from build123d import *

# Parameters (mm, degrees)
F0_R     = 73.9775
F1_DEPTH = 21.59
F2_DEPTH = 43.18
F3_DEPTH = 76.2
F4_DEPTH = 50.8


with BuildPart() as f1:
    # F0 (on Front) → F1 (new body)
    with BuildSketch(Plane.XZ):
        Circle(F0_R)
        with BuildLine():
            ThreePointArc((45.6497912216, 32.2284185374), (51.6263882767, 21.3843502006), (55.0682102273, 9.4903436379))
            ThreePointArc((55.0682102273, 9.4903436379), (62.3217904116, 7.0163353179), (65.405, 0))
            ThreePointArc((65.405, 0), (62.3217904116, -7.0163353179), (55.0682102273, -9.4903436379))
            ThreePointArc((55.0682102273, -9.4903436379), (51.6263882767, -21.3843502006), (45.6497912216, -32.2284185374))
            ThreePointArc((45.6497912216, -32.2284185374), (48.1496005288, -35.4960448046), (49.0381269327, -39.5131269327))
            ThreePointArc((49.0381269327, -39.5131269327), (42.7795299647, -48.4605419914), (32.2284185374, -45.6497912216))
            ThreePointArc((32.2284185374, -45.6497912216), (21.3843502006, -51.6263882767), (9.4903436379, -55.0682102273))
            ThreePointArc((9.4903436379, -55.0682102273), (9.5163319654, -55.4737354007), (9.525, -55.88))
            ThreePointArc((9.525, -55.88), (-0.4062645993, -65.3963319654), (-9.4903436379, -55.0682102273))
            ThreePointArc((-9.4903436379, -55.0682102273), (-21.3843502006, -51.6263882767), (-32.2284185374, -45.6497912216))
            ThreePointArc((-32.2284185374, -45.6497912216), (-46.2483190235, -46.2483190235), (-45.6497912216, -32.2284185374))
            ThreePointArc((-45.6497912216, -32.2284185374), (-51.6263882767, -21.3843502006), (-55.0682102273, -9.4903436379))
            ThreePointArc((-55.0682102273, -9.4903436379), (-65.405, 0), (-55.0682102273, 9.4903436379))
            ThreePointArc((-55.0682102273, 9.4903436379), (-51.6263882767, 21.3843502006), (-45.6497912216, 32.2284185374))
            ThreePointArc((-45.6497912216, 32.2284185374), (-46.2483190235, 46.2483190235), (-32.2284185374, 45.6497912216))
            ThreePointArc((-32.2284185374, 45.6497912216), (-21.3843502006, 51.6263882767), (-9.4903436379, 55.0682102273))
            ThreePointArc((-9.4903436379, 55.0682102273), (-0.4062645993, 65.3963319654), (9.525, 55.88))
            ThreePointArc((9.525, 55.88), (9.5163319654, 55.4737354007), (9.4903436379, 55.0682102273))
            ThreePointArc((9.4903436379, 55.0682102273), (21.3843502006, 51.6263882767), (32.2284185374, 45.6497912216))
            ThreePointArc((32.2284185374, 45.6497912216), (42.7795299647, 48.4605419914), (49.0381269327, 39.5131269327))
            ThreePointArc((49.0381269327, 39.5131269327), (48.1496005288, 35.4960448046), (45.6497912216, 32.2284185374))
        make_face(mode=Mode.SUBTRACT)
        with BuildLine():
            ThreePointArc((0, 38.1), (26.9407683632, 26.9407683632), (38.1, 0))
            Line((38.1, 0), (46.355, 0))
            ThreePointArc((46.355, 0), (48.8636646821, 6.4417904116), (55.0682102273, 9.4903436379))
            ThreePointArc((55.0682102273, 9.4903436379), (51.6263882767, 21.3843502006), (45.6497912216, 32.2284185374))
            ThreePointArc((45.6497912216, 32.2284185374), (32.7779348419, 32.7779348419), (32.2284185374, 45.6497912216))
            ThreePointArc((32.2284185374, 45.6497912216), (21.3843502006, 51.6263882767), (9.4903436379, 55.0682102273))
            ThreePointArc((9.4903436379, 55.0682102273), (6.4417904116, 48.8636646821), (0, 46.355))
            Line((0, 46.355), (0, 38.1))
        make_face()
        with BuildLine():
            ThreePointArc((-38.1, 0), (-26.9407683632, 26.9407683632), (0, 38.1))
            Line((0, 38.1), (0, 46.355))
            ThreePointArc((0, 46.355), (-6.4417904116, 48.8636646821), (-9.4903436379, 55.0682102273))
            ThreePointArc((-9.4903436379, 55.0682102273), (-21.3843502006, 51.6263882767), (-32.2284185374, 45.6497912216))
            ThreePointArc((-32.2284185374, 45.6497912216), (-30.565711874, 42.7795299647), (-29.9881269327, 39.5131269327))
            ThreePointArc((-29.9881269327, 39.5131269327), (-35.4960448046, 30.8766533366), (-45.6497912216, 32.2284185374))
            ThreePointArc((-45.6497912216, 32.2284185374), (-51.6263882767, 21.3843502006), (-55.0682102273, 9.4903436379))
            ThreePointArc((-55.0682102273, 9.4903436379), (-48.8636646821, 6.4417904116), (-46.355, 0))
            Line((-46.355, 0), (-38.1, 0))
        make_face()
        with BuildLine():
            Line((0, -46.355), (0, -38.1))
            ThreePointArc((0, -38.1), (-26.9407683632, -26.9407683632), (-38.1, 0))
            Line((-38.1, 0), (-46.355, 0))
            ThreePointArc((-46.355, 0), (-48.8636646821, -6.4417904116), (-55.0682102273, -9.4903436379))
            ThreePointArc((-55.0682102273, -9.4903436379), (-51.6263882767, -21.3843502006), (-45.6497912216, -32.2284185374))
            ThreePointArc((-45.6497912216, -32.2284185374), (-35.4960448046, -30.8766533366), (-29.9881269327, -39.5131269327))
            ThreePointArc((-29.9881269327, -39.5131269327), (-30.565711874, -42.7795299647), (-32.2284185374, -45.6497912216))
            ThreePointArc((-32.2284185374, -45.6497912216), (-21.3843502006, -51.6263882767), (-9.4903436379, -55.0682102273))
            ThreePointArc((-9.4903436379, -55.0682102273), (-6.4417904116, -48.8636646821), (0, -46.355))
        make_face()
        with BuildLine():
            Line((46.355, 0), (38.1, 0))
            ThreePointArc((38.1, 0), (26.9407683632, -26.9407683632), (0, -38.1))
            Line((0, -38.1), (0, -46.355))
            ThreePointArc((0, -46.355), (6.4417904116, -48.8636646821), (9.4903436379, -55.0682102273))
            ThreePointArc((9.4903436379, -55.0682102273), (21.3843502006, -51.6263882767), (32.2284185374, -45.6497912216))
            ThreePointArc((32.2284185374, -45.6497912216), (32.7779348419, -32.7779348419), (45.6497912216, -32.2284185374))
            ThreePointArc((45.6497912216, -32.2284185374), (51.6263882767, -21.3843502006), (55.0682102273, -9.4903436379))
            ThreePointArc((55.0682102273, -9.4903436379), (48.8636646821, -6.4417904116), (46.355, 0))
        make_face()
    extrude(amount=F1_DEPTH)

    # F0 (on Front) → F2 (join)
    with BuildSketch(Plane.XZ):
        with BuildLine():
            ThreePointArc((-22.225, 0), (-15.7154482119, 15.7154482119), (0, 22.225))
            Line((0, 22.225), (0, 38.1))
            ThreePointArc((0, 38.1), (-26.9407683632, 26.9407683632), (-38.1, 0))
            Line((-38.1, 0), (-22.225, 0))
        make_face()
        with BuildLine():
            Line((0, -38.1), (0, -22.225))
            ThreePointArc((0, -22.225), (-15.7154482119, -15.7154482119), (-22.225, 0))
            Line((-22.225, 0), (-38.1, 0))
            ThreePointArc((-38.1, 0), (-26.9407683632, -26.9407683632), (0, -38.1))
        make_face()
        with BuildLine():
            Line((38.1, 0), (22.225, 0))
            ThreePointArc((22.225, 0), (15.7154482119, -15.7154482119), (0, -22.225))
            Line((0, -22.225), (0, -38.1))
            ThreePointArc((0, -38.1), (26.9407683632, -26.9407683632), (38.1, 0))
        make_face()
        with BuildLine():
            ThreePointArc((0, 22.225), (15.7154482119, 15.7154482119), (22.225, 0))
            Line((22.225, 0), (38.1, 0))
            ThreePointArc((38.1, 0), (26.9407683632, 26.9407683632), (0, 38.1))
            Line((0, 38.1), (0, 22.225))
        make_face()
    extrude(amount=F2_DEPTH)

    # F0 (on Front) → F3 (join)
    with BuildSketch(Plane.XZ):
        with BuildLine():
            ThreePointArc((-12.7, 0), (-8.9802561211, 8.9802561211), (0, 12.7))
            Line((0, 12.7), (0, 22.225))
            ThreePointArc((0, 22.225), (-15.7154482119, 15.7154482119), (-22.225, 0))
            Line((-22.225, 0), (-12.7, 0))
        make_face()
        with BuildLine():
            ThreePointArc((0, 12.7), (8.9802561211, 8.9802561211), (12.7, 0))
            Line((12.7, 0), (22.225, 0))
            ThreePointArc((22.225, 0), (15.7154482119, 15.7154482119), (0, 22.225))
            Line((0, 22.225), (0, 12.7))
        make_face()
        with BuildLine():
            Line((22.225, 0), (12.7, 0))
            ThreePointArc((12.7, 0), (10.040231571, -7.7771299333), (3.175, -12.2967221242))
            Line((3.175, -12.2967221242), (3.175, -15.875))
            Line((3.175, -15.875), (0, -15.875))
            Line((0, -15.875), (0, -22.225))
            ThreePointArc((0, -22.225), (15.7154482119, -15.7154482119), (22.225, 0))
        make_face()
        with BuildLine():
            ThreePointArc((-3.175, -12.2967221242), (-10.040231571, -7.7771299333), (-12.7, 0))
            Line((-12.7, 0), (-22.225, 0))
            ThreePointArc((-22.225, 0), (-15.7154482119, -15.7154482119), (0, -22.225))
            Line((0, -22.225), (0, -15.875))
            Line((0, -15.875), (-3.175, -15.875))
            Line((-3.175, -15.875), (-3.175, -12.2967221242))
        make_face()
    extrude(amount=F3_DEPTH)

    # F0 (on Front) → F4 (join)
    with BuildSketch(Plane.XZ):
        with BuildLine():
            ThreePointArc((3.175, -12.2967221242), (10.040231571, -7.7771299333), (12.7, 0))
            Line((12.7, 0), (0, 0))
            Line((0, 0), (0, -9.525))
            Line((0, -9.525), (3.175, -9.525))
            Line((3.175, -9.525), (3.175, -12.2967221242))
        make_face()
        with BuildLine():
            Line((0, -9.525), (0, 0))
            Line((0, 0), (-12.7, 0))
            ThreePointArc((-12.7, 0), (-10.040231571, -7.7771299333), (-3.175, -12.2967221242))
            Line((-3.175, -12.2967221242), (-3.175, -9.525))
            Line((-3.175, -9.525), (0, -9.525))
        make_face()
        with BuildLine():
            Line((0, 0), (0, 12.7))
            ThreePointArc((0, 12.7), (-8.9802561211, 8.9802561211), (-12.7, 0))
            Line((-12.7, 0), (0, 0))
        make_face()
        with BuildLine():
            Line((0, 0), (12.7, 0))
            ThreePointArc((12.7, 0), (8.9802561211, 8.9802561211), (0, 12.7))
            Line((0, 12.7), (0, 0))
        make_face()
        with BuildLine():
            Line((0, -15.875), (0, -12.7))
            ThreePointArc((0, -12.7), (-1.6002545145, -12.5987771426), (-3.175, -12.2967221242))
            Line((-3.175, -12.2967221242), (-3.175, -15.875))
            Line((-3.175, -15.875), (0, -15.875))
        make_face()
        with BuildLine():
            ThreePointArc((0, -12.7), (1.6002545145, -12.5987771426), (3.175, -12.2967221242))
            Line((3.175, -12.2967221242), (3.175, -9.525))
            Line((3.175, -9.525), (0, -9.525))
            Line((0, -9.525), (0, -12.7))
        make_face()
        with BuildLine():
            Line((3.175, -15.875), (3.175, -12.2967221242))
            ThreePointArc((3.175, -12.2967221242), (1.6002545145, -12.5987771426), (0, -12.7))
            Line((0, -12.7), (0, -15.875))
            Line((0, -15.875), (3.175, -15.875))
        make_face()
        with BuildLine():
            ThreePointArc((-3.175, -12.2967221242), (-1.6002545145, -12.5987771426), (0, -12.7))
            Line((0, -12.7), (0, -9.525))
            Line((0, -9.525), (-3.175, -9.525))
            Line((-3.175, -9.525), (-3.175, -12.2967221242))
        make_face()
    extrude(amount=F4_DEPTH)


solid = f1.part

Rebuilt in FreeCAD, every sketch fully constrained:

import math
import FreeCAD as App
import Part
import Sketcher
from FreeCAD import Vector
Q = App.Units.Quantity

doc = App.newDocument("Part")
body = doc.addObject("PartDesign::Body", "Body")

sketch1 = body.newObject("Sketcher::SketchObject", "Sketch")
sketch1.AttachmentSupport = (doc.getObject("XZ_Plane"), [""])
sketch1.MapMode = "FlatFace"
sketch1.addGeometry([
    Part.Circle(Vector(0, 0, 0), Vector(0, 0, 1), 74),
    Part.ArcOfCircle(Part.Circle(Vector(39.5, 39.5, 0), Vector(0, 0, 1), 9.5), math.radians(-50), math.radians(0)),
    Part.ArcOfCircle(Part.Circle(Vector(39.5, 39.5, 0), Vector(0, 0, 1), 9.5), math.radians(140), math.radians(310)),
    Part.ArcOfCircle(Part.Circle(Vector(39.5, 39.5, 0), Vector(0, 0, 1), 9.5), math.radians(0), math.radians(140)),
    Part.ArcOfCircle(Part.Circle(Vector(0, 55.9, 0), Vector(0, 0, 1), 9.5), math.radians(-4.89), math.radians(0)),
    Part.ArcOfCircle(Part.Circle(Vector(0, 55.9, 0), Vector(0, 0, 1), 9.5), math.radians(-90), math.radians(-5)),
    Part.ArcOfCircle(Part.Circle(Vector(0, 55.9, 0), Vector(0, 0, 1), 9.5), math.radians(-175), math.radians(-90)),
    Part.ArcOfCircle(Part.Circle(Vector(0, 55.9, 0), Vector(0, 0, 1), 9.5), math.radians(0), math.radians(185)),
    Part.ArcOfCircle(Part.Circle(Vector(0, 0, 0), Vector(0, 0, 1), 38.1), math.radians(0), math.radians(90)),
    Part.ArcOfCircle(Part.Circle(Vector(0, 0, 0), Vector(0, 0, 1), 38.1), math.radians(-90), math.radians(0)),
    Part.ArcOfCircle(Part.Circle(Vector(0, 0, 0), Vector(0, 0, 1), 38.1), math.radians(180), math.radians(270)),
    Part.ArcOfCircle(Part.Circle(Vector(0, 0, 0), Vector(0, 0, 1), 38.1), math.radians(90), math.radians(180)),
    Part.ArcOfCircle(Part.Circle(Vector(55.9, 0, 0), Vector(0, 0, 1), 9.5), math.radians(95), math.radians(180)),
    Part.ArcOfCircle(Part.Circle(Vector(55.9, 0, 0), Vector(0, 0, 1), 9.5), math.radians(0), math.radians(95)),
    Part.ArcOfCircle(Part.Circle(Vector(55.9, 0, 0), Vector(0, 0, 1), 9.5), math.radians(-95), math.radians(0)),
    Part.ArcOfCircle(Part.Circle(Vector(55.9, 0, 0), Vector(0, 0, 1), 9.5), math.radians(180), math.radians(265)),
    Part.ArcOfCircle(Part.Circle(Vector(39.5, -39.5, 0), Vector(0, 0, 1), 9.5), math.radians(0), math.radians(50)),
    Part.ArcOfCircle(Part.Circle(Vector(39.5, -39.5, 0), Vector(0, 0, 1), 9.5), math.radians(-140), math.radians(0)),
    Part.ArcOfCircle(Part.Circle(Vector(39.5, -39.5, 0), Vector(0, 0, 1), 9.5), math.radians(50), math.radians(220)),
    Part.ArcOfCircle(Part.Circle(Vector(0, -55.9, 0), Vector(0, 0, 1), 9.5), math.radians(0), math.radians(4.89)),
    Part.ArcOfCircle(Part.Circle(Vector(0, -55.9, 0), Vector(0, 0, 1), 9.5), math.radians(175), math.radians(360)),
    Part.ArcOfCircle(Part.Circle(Vector(0, -55.9, 0), Vector(0, 0, 1), 9.5), math.radians(90), math.radians(175)),
    Part.ArcOfCircle(Part.Circle(Vector(0, -55.9, 0), Vector(0, 0, 1), 9.5), math.radians(5), math.radians(90)),
    Part.ArcOfCircle(Part.Circle(Vector(-39.5, -39.5, 0), Vector(0, 0, 1), 9.5), math.radians(130), math.radians(320)),
    Part.ArcOfCircle(Part.Circle(Vector(-39.5, -39.5, 0), Vector(0, 0, 1), 9.5), math.radians(0), math.radians(130)),
    Part.ArcOfCircle(Part.Circle(Vector(-39.5, -39.5, 0), Vector(0, 0, 1), 9.5), math.radians(-40), math.radians(0)),
    Part.ArcOfCircle(Part.Circle(Vector(-55.9, 0, 0), Vector(0, 0, 1), 9.5), math.radians(85), math.radians(275)),
    Part.ArcOfCircle(Part.Circle(Vector(-55.9, 0, 0), Vector(0, 0, 1), 9.5), math.radians(0), math.radians(85)),
    Part.ArcOfCircle(Part.Circle(Vector(-55.9, 0, 0), Vector(0, 0, 1), 9.5), math.radians(-85), math.radians(0)),
    Part.ArcOfCircle(Part.Circle(Vector(-39.5, 39.5, 0), Vector(0, 0, 1), 9.5), math.radians(40), math.radians(230)),
    Part.ArcOfCircle(Part.Circle(Vector(-39.5, 39.5, 0), Vector(0, 0, 1), 9.5), math.radians(0), math.radians(40)),
    Part.ArcOfCircle(Part.Circle(Vector(-39.5, 39.5, 0), Vector(0, 0, 1), 9.5), math.radians(-130), math.radians(0)),
], False)
sketch1.addConstraint([
    Sketcher.Constraint("Tangent", 1, 1, 2, 2),
    Sketcher.Constraint("Tangent", 2, 1, 3, 2),
    Sketcher.Constraint("Tangent", 3, 1, 1, 2),
    Sketcher.Constraint("Tangent", 4, 1, 5, 2),
    Sketcher.Constraint("Tangent", 5, 1, 6, 2),
    Sketcher.Constraint("Tangent", 6, 1, 7, 2),
    Sketcher.Constraint("Tangent", 7, 1, 4, 2),
    Sketcher.Constraint("Tangent", 8, 1, 9, 2),
    Sketcher.Constraint("Tangent", 9, 1, 10, 2),
    Sketcher.Constraint("Tangent", 10, 1, 11, 2),
    Sketcher.Constraint("Tangent", 11, 1, 8, 2),
    Sketcher.Constraint("Tangent", 12, 1, 13, 2),
    Sketcher.Constraint("Tangent", 13, 1, 14, 2),
    Sketcher.Constraint("Tangent", 14, 1, 15, 2),
    Sketcher.Constraint("Tangent", 15, 1, 12, 2),
    Sketcher.Constraint("Tangent", 16, 1, 17, 2),
    Sketcher.Constraint("Tangent", 17, 1, 18, 2),
    Sketcher.Constraint("Tangent", 18, 1, 16, 2),
    Sketcher.Constraint("Tangent", 19, 1, 20, 2),
    Sketcher.Constraint("Tangent", 20, 1, 21, 2),
    Sketcher.Constraint("Tangent", 21, 1, 22, 2),
    Sketcher.Constraint("Tangent", 22, 1, 19, 2),
    Sketcher.Constraint("Tangent", 23, 1, 24, 2),
    Sketcher.Constraint("Tangent", 24, 1, 25, 2),
    Sketcher.Constraint("Tangent", 25, 1, 23, 2),
    Sketcher.Constraint("Tangent", 26, 1, 27, 2),
    Sketcher.Constraint("Tangent", 27, 1, 28, 2),
    Sketcher.Constraint("Tangent", 28, 1, 26, 2),
    Sketcher.Constraint("Tangent", 29, 1, 30, 2),
    Sketcher.Constraint("Tangent", 30, 1, 31, 2),
    Sketcher.Constraint("Tangent", 31, 1, 29, 2),
    Sketcher.Constraint("Coincident", 0, 3, -1, 1),
    Sketcher.Constraint("Coincident", 8, 3, -1, 1),
    Sketcher.Constraint("Equal", 3, 4),
    Sketcher.Constraint("Equal", 4, 5),
    Sketcher.Constraint("Equal", 8, 9),
    Sketcher.Constraint("Equal", 7, 12),
    Sketcher.Constraint("Equal", 12, 13),
    Sketcher.Constraint("Equal", 15, 16),
    Sketcher.Constraint("Equal", 18, 19),
    Sketcher.Constraint("Equal", 19, 20),
    Sketcher.Constraint("Equal", 22, 23),
    Sketcher.Constraint("Equal", 25, 26),
    Sketcher.Constraint("Equal", 28, 29),
    Sketcher.Constraint("Symmetric", 4, 3, 19, 3, -1, 1),
    Sketcher.Constraint("Symmetric", 1, 3, 23, 3, -1, 1),
    Sketcher.Constraint("Symmetric", 12, 3, 26, 3, -1, 1),
    Sketcher.Constraint("Symmetric", 16, 3, 29, 3, -1, 1),
    Sketcher.Constraint("Symmetric", 16, 3, 23, 3, -2),
    Sketcher.Constraint("Symmetric", 4, 1, 6, 1, -2),
    Sketcher.Constraint("Symmetric", 12, 1, 26, 1, -2),
    Sketcher.Constraint("PointOnObject", 5, 1, -2),
    Sketcher.Constraint("PointOnObject", 8, 1, -1),
    Sketcher.Constraint("PointOnObject", 9, 1, -2),
    Sketcher.Constraint("PointOnObject", 10, 1, -1),
    Sketcher.Constraint("PointOnObject", 11, 1, -2),
    Sketcher.Constraint("PointOnObject", 13, 1, -1),
    Sketcher.Constraint("PointOnObject", 15, 1, -1),
    Sketcher.Constraint("PointOnObject", 21, 1, -2),
    Sketcher.Constraint("PointOnObject", 27, 1, -1),
    Sketcher.Constraint("Horizontal", 31, 3, 3, 1),
    Sketcher.Constraint("Horizontal", 6, 3, 7, 1),
    Sketcher.Constraint("Horizontal", 25, 3, 16, 1),
    Sketcher.Constraint("Horizontal", 22, 3, 19, 1),
    Sketcher.Constraint("Horizontal", 20, 1, 22, 1),
    Sketcher.Constraint("Horizontal", 18, 1, 23, 1),
    Sketcher.Constraint("Horizontal", 16, 1, 24, 1),
    Sketcher.Constraint("Horizontal", 17, 1, 25, 1),
    Sketcher.Constraint("Horizontal", 14, 1, 28, 1),
    Sketcher.Constraint("Horizontal", 2, 1, 29, 1),
    Sketcher.Constraint("Horizontal", 3, 1, 30, 1),
    Sketcher.Constraint("Horizontal", 1, 1, 31, 1),
    Sketcher.Constraint("Vertical", 12, 1, 14, 1),
    Sketcher.Constraint("Vertical", 2, 1, 17, 1),
    Sketcher.Constraint("Vertical", 1, 1, 18, 1),
    Sketcher.Constraint("Vertical", 6, 1, 20, 1),
    Sketcher.Constraint("Radius", 8, Q("1.5 in")),
    Sketcher.Constraint("Diameter", 0, Q("5.825 in")),
    Sketcher.Constraint("Radius", 1, Q("0.375 in")),
    Sketcher.Constraint("DistanceY", -1, 1, 4, 3, Q("2.2 in")),
    Sketcher.Constraint("DistanceX", -1, 1, 12, 3, Q("2.2 in")),
    Sketcher.Constraint("DistanceX", -1, 1, 1, 1, 45.649791),
    Sketcher.Constraint("DistanceY", -1, 1, 1, 1, 32.228419),
    Sketcher.Constraint("DistanceX", -1, 1, 2, 1, 32.228419),
    Sketcher.Constraint("DistanceY", -1, 1, 2, 1, 45.649791),
    Sketcher.Constraint("DistanceY", -1, 1, 4, 1, 55.06821),
    Sketcher.Constraint("DistanceX", -1, 1, 12, 1, 55.06821),
])
pad1 = body.newObject("PartDesign::Pad", "Pad")
pad1.Profile = sketch1
pad1.Length = Q("0.85 in")

sketch2 = body.newObject("Sketcher::SketchObject", "Sketch001")
sketch2.AttachmentSupport = (doc.getObject("XZ_Plane"), [""])
sketch2.MapMode = "FlatFace"
sketch2.addGeometry([
    Part.ArcOfCircle(Part.Circle(Vector(0, 0, 0), Vector(0, 0, 1), 38), math.radians(90), math.radians(180)),
    Part.ArcOfCircle(Part.Circle(Vector(0, 0, 0), Vector(0, 0, 1), 38), math.radians(180), math.radians(270)),
    Part.ArcOfCircle(Part.Circle(Vector(0, 0, 0), Vector(0, 0, 1), 38), math.radians(-90), math.radians(0)),
    Part.ArcOfCircle(Part.Circle(Vector(0, 0, 0), Vector(0, 0, 1), 38), math.radians(0), math.radians(90)),
    Part.ArcOfCircle(Part.Circle(Vector(0, 0, 0), Vector(0, 0, 1), 22), math.radians(90), math.radians(180)),
    Part.ArcOfCircle(Part.Circle(Vector(0, 0, 0), Vector(0, 0, 1), 22), math.radians(0), math.radians(90)),
    Part.ArcOfCircle(Part.Circle(Vector(0, 0, 0), Vector(0, 0, 1), 22), math.radians(-90), math.radians(0)),
    Part.ArcOfCircle(Part.Circle(Vector(0, 0, 0), Vector(0, 0, 1), 22), math.radians(180), math.radians(270)),
], False)
sketch2.addConstraint([
    Sketcher.Constraint("Tangent", 0, 2, 1, 1),
    Sketcher.Constraint("Tangent", 1, 2, 2, 1),
    Sketcher.Constraint("Tangent", 2, 2, 3, 1),
    Sketcher.Constraint("Tangent", 3, 2, 0, 1),
    Sketcher.Constraint("Tangent", 4, 1, 5, 2),
    Sketcher.Constraint("Tangent", 5, 1, 6, 2),
    Sketcher.Constraint("Tangent", 6, 1, 7, 2),
    Sketcher.Constraint("Tangent", 7, 1, 4, 2),
    Sketcher.Constraint("Coincident", 0, 3, -1, 1),
    Sketcher.Constraint("Coincident", 4, 3, -1, 1),
    Sketcher.Constraint("Equal", 0, 1),
    Sketcher.Constraint("Equal", 4, 5),
    Sketcher.Constraint("PointOnObject", 0, 2, -1),
    Sketcher.Constraint("PointOnObject", 1, 2, -2),
    Sketcher.Constraint("PointOnObject", 2, 2, -1),
    Sketcher.Constraint("PointOnObject", 3, 2, -2),
    Sketcher.Constraint("PointOnObject", 4, 1, -2),
    Sketcher.Constraint("PointOnObject", 5, 1, -1),
    Sketcher.Constraint("PointOnObject", 6, 1, -2),
    Sketcher.Constraint("PointOnObject", 7, 1, -1),
    Sketcher.Constraint("Radius", 0, Q("1.5 in")),
    Sketcher.Constraint("Radius", 4, Q("0.875 in")),
])
pad2 = body.newObject("PartDesign::Pad", "Pad001")
pad2.Profile = sketch2
pad2.Length = Q("1.7 in")

sketch3 = body.newObject("Sketcher::SketchObject", "Sketch002")
sketch3.AttachmentSupport = (doc.getObject("XZ_Plane"), [""])
sketch3.MapMode = "FlatFace"
sketch3.addGeometry([
    Part.ArcOfCircle(Part.Circle(Vector(0, 0, 0), Vector(0, 0, 1), 22.2), math.radians(-90), math.radians(0)),
    Part.ArcOfCircle(Part.Circle(Vector(0, 0, 0), Vector(0, 0, 1), 22.2), math.radians(0), math.radians(90)),
    Part.ArcOfCircle(Part.Circle(Vector(0, 0, 0), Vector(0, 0, 1), 22.2), math.radians(90), math.radians(180)),
    Part.ArcOfCircle(Part.Circle(Vector(0, 0, 0), Vector(0, 0, 1), 22.2), math.radians(180), math.radians(270)),
    Part.ArcOfCircle(Part.Circle(Vector(0, 0, 0), Vector(0, 0, 1), 12.7), math.radians(90), math.radians(180)),
    Part.ArcOfCircle(Part.Circle(Vector(0, 0, 0), Vector(0, 0, 1), 12.7), math.radians(0), math.radians(90)),
    Part.ArcOfCircle(Part.Circle(Vector(0, 0, 0), Vector(0, 0, 1), 12.7), math.radians(-76), math.radians(0)),
    Part.LineSegment(Vector(3.2, -12.3, 0), Vector(3.2, -15.9, 0)),
    Part.LineSegment(Vector(3.2, -15.9, 0), Vector(-3.2, -15.9, 0)),
    Part.LineSegment(Vector(-3.2, -15.9, 0), Vector(-3.2, -12.3, 0)),
    Part.ArcOfCircle(Part.Circle(Vector(0, 0, 0), Vector(0, 0, 1), 12.7), math.radians(180), math.radians(256)),
], False)
sketch3.addConstraint([
    Sketcher.Constraint("Tangent", 0, 2, 1, 1),
    Sketcher.Constraint("Tangent", 1, 2, 2, 1),
    Sketcher.Constraint("Tangent", 2, 2, 3, 1),
    Sketcher.Constraint("Tangent", 3, 2, 0, 1),
    Sketcher.Constraint("Tangent", 4, 1, 5, 2),
    Sketcher.Constraint("Tangent", 5, 1, 6, 2),
    Sketcher.Constraint("Coincident", 6, 1, 7, 1),
    Sketcher.Constraint("Coincident", 7, 2, 8, 1),
    Sketcher.Constraint("Coincident", 8, 2, 9, 1),
    Sketcher.Constraint("Coincident", 9, 2, 10, 2),
    Sketcher.Constraint("Tangent", 10, 1, 4, 2),
    Sketcher.Constraint("Vertical", 7),
    Sketcher.Constraint("Horizontal", 8),
    Sketcher.Constraint("Vertical", 9),
    Sketcher.Constraint("Coincident", 0, 3, -1, 1),
    Sketcher.Constraint("Coincident", 4, 3, -1, 1),
    Sketcher.Constraint("Coincident", 6, 3, -1, 1),
    Sketcher.Constraint("Equal", 0, 1),
    Sketcher.Constraint("Equal", 6, 10),
    Sketcher.Constraint("PointOnObject", 0, 2, -1),
    Sketcher.Constraint("PointOnObject", 1, 2, -2),
    Sketcher.Constraint("PointOnObject", 2, 2, -1),
    Sketcher.Constraint("PointOnObject", 3, 2, -2),
    Sketcher.Constraint("PointOnObject", 4, 1, -2),
    Sketcher.Constraint("PointOnObject", 5, 1, -1),
    Sketcher.Constraint("PointOnObject", 10, 1, -1),
    Sketcher.Constraint("Horizontal", 6, 1, 9, 2),
    Sketcher.Constraint("Radius", 4, Q("0.5 in")),
    Sketcher.Constraint("Radius", 0, Q("0.875 in")),
    Sketcher.Constraint("DistanceX", 8, 2, 8, 1, Q("0.25 in")),
    Sketcher.Constraint("DistanceY", 3, 2, 7, 2, Q("0.25 in")),
])
pad3 = body.newObject("PartDesign::Pad", "Pad002")
pad3.Profile = sketch3
pad3.Length = Q("3 in")

sketch4 = body.newObject("Sketcher::SketchObject", "Sketch003")
sketch4.AttachmentSupport = (doc.getObject("XZ_Plane"), [""])
sketch4.MapMode = "FlatFace"
sketch4.addGeometry([
    Part.ArcOfCircle(Part.Circle(Vector(0, 0, 0), Vector(0, 0, 1), 12.7), math.radians(180), math.radians(256)),
    Part.LineSegment(Vector(-3.2, -12.3, 0), Vector(-3.2, -15.9, 0)),
    Part.LineSegment(Vector(-3.2, -15.9, 0), Vector(3.2, -15.9, 0)),
    Part.LineSegment(Vector(3.2, -15.9, 0), Vector(3.2, -12.3, 0)),
    Part.ArcOfCircle(Part.Circle(Vector(0, 0, 0), Vector(0, 0, 1), 12.7), math.radians(-76), math.radians(0)),
    Part.ArcOfCircle(Part.Circle(Vector(0, 0, 0), Vector(0, 0, 1), 12.7), math.radians(0), math.radians(90)),
    Part.ArcOfCircle(Part.Circle(Vector(0, 0, 0), Vector(0, 0, 1), 12.7), math.radians(90), math.radians(180)),
], False)
sketch4.addConstraint([
    Sketcher.Constraint("Coincident", 0, 2, 1, 1),
    Sketcher.Constraint("Coincident", 1, 2, 2, 1),
    Sketcher.Constraint("Coincident", 2, 2, 3, 1),
    Sketcher.Constraint("Coincident", 3, 2, 4, 1),
    Sketcher.Constraint("Tangent", 4, 2, 5, 1),
    Sketcher.Constraint("Tangent", 5, 2, 6, 1),
    Sketcher.Constraint("Tangent", 6, 2, 0, 1),
    Sketcher.Constraint("Vertical", 1),
    Sketcher.Constraint("Horizontal", 2),
    Sketcher.Constraint("Vertical", 3),
    Sketcher.Constraint("Coincident", 0, 3, -1, 1),
    Sketcher.Constraint("Coincident", 4, 3, -1, 1),
    Sketcher.Constraint("Equal", 0, 4),
    Sketcher.Constraint("PointOnObject", 4, 2, -1),
    Sketcher.Constraint("PointOnObject", 5, 2, -2),
    Sketcher.Constraint("PointOnObject", 6, 2, -1),
    Sketcher.Constraint("Horizontal", 0, 2, 3, 2),
    Sketcher.Constraint("Radius", 0, Q("0.5 in")),
    Sketcher.Constraint("DistanceX", 2, 1, 2, 2, Q("0.25 in")),
    Sketcher.Constraint("DistanceY", 1, 2, -1, 1, Q("0.625 in")),
])
pad4 = body.newObject("PartDesign::Pad", "Pad003")
pad4.Profile = sketch4
pad4.Length = Q("2 in")

doc.recompute()
